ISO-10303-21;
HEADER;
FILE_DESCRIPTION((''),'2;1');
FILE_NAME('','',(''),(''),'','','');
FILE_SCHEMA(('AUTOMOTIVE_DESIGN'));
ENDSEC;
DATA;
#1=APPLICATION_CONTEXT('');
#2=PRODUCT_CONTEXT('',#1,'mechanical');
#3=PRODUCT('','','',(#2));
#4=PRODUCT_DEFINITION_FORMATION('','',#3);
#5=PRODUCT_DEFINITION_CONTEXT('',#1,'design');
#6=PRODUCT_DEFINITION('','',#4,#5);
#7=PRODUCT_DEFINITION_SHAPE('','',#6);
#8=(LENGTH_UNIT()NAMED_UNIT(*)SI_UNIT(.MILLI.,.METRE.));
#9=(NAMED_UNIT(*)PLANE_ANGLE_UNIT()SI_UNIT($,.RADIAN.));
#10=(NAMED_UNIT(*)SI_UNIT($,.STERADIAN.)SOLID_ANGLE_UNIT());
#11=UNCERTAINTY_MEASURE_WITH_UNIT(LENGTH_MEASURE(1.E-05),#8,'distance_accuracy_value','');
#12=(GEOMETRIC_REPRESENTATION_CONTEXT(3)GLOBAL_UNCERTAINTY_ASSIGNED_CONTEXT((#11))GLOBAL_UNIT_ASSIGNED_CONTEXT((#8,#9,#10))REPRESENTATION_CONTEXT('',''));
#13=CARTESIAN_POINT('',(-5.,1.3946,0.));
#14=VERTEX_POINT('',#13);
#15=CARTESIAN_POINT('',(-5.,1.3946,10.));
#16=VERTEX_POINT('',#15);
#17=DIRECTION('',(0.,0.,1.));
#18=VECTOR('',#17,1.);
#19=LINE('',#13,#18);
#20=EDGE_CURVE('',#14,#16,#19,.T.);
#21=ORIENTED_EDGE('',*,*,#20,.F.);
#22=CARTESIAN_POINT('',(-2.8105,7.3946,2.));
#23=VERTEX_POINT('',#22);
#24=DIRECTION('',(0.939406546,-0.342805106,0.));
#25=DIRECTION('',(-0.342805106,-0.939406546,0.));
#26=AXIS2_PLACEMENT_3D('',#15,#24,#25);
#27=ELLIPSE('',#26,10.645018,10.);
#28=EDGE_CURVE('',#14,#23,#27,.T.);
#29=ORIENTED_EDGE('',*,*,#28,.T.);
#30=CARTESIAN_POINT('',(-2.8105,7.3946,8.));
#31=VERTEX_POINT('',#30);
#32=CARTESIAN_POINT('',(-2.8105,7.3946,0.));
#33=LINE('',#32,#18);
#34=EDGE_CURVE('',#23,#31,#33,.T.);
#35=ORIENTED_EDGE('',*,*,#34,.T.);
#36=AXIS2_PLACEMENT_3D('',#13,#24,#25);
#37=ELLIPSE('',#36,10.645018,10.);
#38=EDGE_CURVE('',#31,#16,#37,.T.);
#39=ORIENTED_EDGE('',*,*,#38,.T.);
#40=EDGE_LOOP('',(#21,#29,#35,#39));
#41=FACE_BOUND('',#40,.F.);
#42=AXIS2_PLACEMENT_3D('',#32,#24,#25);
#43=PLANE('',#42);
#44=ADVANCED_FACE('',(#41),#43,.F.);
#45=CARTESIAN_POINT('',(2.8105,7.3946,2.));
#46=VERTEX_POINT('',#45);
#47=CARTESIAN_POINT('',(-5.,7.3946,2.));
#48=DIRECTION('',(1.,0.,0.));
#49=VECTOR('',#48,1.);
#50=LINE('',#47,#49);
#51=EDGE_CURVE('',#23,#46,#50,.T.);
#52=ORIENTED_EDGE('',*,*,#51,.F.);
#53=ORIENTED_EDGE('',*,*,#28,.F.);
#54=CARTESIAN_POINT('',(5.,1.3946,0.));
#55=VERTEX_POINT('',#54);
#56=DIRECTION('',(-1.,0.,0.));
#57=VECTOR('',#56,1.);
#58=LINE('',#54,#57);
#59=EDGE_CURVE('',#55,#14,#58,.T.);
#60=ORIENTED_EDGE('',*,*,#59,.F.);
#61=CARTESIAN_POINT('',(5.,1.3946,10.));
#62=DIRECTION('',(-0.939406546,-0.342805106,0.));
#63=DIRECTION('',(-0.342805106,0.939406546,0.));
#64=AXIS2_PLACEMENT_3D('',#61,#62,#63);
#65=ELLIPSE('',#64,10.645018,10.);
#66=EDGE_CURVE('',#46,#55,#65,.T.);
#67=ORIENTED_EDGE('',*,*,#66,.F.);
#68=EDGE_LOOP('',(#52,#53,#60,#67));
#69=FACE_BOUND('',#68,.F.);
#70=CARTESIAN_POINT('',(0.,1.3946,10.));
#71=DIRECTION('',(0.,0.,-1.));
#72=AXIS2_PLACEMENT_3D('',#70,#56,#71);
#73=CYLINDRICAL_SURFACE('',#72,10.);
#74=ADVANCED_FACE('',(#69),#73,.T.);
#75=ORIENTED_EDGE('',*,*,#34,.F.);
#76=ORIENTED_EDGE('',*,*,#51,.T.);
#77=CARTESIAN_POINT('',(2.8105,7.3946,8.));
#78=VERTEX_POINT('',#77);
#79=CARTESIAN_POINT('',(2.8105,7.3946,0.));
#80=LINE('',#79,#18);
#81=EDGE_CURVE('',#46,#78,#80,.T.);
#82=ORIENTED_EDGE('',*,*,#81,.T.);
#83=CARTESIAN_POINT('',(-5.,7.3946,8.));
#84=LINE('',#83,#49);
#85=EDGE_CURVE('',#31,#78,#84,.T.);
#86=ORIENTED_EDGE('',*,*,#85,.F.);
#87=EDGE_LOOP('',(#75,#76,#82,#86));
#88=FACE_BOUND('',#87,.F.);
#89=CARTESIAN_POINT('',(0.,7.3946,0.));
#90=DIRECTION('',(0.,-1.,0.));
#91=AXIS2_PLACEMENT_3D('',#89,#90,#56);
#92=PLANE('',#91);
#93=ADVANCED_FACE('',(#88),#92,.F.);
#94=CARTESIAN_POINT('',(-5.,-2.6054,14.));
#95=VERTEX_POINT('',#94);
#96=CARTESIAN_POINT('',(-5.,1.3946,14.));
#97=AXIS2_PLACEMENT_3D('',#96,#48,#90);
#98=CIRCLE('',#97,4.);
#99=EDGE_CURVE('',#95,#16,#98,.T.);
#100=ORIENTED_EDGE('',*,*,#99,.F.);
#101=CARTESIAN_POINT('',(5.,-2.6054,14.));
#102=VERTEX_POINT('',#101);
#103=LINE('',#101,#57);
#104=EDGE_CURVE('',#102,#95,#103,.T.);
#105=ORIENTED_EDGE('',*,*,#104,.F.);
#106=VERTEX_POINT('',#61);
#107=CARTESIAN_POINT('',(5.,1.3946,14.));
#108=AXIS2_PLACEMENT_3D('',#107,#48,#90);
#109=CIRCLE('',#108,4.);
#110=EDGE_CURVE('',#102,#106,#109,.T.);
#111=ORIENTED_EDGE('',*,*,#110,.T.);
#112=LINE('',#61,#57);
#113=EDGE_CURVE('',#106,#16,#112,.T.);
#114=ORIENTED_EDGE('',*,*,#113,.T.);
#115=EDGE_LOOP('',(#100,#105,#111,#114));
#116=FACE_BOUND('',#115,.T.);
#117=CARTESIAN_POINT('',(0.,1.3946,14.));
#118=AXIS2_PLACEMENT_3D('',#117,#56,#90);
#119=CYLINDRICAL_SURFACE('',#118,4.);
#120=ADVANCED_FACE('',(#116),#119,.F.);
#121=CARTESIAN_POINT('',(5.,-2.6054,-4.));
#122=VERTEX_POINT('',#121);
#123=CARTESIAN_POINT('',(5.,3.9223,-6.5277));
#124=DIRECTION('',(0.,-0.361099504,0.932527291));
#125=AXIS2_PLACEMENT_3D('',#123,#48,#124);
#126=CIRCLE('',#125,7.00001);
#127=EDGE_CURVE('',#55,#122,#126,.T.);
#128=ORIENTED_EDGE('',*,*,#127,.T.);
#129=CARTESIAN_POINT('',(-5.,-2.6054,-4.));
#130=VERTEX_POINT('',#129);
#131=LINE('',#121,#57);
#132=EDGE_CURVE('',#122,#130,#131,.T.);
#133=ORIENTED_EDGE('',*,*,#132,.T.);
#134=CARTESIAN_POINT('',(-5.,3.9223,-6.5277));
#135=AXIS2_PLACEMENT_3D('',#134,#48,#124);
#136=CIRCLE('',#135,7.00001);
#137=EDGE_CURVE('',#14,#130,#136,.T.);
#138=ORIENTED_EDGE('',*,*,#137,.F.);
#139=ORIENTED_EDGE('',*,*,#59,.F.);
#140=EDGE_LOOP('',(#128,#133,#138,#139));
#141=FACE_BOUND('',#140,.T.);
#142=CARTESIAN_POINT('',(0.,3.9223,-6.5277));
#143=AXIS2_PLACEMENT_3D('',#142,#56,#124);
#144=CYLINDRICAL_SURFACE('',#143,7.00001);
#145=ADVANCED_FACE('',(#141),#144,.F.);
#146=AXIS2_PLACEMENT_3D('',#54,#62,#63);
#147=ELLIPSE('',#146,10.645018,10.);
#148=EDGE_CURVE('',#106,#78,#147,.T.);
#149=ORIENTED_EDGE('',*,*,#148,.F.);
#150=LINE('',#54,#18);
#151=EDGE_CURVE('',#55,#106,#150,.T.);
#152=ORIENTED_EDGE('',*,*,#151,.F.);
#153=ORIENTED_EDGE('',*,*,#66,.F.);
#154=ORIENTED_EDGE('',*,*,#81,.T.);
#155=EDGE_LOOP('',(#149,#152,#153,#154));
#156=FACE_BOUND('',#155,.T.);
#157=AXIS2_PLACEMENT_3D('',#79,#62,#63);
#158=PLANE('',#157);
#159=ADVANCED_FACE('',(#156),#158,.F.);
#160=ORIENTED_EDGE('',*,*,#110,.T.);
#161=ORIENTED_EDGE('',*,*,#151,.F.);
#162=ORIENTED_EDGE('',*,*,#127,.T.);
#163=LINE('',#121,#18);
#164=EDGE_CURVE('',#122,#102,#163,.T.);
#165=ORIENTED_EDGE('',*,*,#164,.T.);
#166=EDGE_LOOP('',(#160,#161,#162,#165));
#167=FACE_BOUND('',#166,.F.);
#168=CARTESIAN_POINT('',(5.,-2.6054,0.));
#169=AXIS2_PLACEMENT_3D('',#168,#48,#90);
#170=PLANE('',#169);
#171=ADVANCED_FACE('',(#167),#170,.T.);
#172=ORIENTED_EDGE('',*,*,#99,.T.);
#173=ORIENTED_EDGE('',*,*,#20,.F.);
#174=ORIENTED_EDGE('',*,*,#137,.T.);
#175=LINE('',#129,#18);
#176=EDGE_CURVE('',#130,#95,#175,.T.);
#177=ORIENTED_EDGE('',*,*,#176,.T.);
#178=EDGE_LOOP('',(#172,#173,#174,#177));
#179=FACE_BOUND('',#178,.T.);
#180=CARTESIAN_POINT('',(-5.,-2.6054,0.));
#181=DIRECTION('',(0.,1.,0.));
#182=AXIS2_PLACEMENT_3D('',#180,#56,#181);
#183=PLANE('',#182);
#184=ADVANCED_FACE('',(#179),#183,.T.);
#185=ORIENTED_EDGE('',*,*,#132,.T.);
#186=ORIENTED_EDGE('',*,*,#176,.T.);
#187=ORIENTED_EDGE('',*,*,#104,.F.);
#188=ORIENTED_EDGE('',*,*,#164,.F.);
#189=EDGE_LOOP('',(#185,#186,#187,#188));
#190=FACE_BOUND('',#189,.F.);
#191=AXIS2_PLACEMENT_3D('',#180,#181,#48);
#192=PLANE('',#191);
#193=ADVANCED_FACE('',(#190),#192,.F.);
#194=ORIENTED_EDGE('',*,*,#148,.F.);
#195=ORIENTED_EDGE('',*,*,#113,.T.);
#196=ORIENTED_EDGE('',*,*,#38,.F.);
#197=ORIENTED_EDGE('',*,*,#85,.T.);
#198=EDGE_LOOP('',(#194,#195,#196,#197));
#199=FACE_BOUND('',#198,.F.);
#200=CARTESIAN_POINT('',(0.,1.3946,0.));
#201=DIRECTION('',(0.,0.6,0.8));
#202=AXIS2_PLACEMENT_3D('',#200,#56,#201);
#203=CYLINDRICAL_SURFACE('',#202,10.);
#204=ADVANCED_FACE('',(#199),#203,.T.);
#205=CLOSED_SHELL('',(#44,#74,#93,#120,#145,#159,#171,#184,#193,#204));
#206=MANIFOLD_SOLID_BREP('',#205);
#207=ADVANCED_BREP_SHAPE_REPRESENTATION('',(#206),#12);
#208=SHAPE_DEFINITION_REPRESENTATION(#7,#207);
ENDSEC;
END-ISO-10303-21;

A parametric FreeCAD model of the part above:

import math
import FreeCAD as App
import Part
import Sketcher
from FreeCAD import Vector

doc = App.newDocument("Part")
params = doc.addObject("Spreadsheet::Sheet", "Params")
for row, (alias, value) in enumerate([
    ("sketch1_width", "5 mm"),
    ("sketch1_height", "4 mm"),
    ("pad1_length", "10 mm"),
    ("sketch2_radius", "10 mm"),
    ("pocket1_length", "10 mm"),
    ("sketch3_radius", "7 mm"),
    ("sketch3_radius2", "4 mm"),
    ("sketch3_height", "10 mm"),
    ("pad2_length", "10 mm"),
], start=1):
    params.set(f"A{row}", alias)
    params.set(f"B{row}", "=" + value)
    params.setAlias(f"B{row}", alias)

body = doc.addObject("PartDesign::Body", "Body")

sketch1 = body.newObject("Sketcher::SketchObject", "Sketch")
sketch1.AttachmentSupport = (doc.getObject("XY_Plane"), [""])
sketch1.MapMode = "FlatFace"
sketch1.addGeometry(Part.LineSegment(Vector(-5, 1.4, 0), Vector(-5, -2.6, 0)), False)
sketch1.addGeometry(Part.LineSegment(Vector(-5, -2.6, 0), Vector(0, -2.6, 0)), False)
sketch1.addGeometry(Part.LineSegment(Vector(0, -2.6, 0), Vector(0, 7.4, 0)), False)
sketch1.addGeometry(Part.LineSegment(Vector(0, 7.4, 0), Vector(-2.8, 7.4, 0)), False)
sketch1.addGeometry(Part.LineSegment(Vector(-2.8, 7.4, 0), Vector(-5, 1.4, 0)), False)
sketch1.addConstraint(Sketcher.Constraint("Coincident", 0, 2, 1, 1))
sketch1.addConstraint(Sketcher.Constraint("Coincident", 1, 2, 2, 1))
sketch1.addConstraint(Sketcher.Constraint("Coincident", 2, 2, 3, 1))
sketch1.addConstraint(Sketcher.Constraint("Coincident", 3, 2, 4, 1))
sketch1.addConstraint(Sketcher.Constraint("Coincident", 4, 2, 0, 1))
sketch1.addConstraint(Sketcher.Constraint("Vertical", 0))
sketch1.addConstraint(Sketcher.Constraint("Horizontal", 1))
sketch1.addConstraint(Sketcher.Constraint("Vertical", 2))
sketch1.addConstraint(Sketcher.Constraint("Horizontal", 3))
sketch1.addConstraint(Sketcher.Constraint("PointOnObject", 1, 2, -2))
sketch1.addConstraint(Sketcher.Constraint("DistanceX", 1, 1, 1, 2, 5.0))
sketch1.addConstraint(Sketcher.Constraint("DistanceY", 0, 2, 0, 1, 4.0))
sketch1.addConstraint(Sketcher.Constraint("DistanceY", 4, 2, 3, 2, 6.0))
sketch1.addConstraint(Sketcher.Constraint("Distance", 4, 6.387))
sketch1.addConstraint(Sketcher.Constraint("DistanceY", 0, 2, -1, 1, 2.6054))
sketch1.setExpression("Constraints[10]", "Params.sketch1_width")
sketch1.setExpression("Constraints[11]", "Params.sketch1_height")
pad1 = body.newObject("PartDesign::Pad", "Pad")
pad1.Profile = sketch1
pad1.setExpression("Length", "Params.pad1_length")
doc.recompute()

mirrored = body.newObject("PartDesign::Mirrored", "Mirrored")
mirrored.Originals = [pad1]
mirrored.MirrorPlane = (doc.getObject("YZ_Plane"), [""])
body.Tip = mirrored

sketch2 = body.newObject("Sketcher::SketchObject", "Sketch001")
sketch2.AttachmentSupport = (doc.getObject("YZ_Plane"), [""])
sketch2.MapMode = "FlatFace"
sketch2.addGeometry(Part.LineSegment(Vector(1.4, 0, 0), Vector(7.4, 0, 0)), False)
sketch2.addGeometry(Part.LineSegment(Vector(7.4, 0, 0), Vector(7.4, 2, 0)), False)
sketch2.addGeometry(Part.ArcOfCircle(Part.Circle(Vector(1.4, 10, 0), Vector(0, 0, 1), 10), math.radians(-90), math.radians(-53)), False)
sketch2.addGeometry(Part.ArcOfCircle(Part.Circle(Vector(1.4, 0, 0), Vector(0, 0, 1), 10), math.radians(53), math.radians(90)), False)
sketch2.addGeometry(Part.LineSegment(Vector(7.4, 8, 0), Vector(7.4, 10, 0)), False)
sketch2.addGeometry(Part.LineSegment(Vector(7.4, 10, 0), Vector(1.4, 10, 0)), False)
sketch2.addConstraint(Sketcher.Constraint("Coincident", 0, 2, 1, 1))
sketch2.addConstraint(Sketcher.Constraint("Coincident", 1, 2, 2, 2))
sketch2.addConstraint(Sketcher.Constraint("Tangent", 2, 1, 0, 1))
sketch2.addConstraint(Sketcher.Constraint("Coincident", 3, 1, 4, 1))
sketch2.addConstraint(Sketcher.Constraint("Coincident", 4, 2, 5, 1))
sketch2.addConstraint(Sketcher.Constraint("Tangent", 5, 2, 3, 2))
sketch2.addConstraint(Sketcher.Constraint("Horizontal", 0))
sketch2.addConstraint(Sketcher.Constraint("Vertical", 1))
sketch2.addConstraint(Sketcher.Constraint("Vertical", 4))
sketch2.addConstraint(Sketcher.Constraint("Horizontal", 5))
sketch2.addConstraint(Sketcher.Constraint("Coincident", 2, 1, 3, 3))
sketch2.addConstraint(Sketcher.Constraint("Equal", 2, 3))
sketch2.addConstraint(Sketcher.Constraint("PointOnObject", 3, 3, -1))
sketch2.addConstraint(Sketcher.Constraint("Vertical", 1, 2, 3, 1))
sketch2.addConstraint(Sketcher.Constraint("Radius", 2, 10.0))
sketch2.addConstraint(Sketcher.Constraint("DistanceY", -1, 1, 3, 1, 8.0))
sketch2.addConstraint(Sketcher.Constraint("DistanceX", -1, 1, 2, 3, 1.3946))
sketch2.setExpression("Constraints[14]", "Params.sketch2_radius")
pocket1 = body.newObject("PartDesign::Pocket", "Pocket")
pocket1.Profile = sketch2
pocket1.setExpression("Length", "Params.pocket1_length")
pocket1.Midplane = True

sketch3 = body.newObject("Sketcher::SketchObject", "Sketch002")
sketch3.AttachmentSupport = (doc.getObject("YZ_Plane"), [""])
sketch3.MapMode = "FlatFace"
sketch3.addGeometry(Part.ArcOfCircle(Part.Circle(Vector(3.9, -6.5, 0), Vector(0, 0, 1), 7), math.radians(111), math.radians(159)), False)
sketch3.addGeometry(Part.LineSegment(Vector(1.4, 0, 0), Vector(1.4, 10, 0)), False)
sketch3.addGeometry(Part.ArcOfCircle(Part.Circle(Vector(1.4, 14, 0), Vector(0, 0, 1), 4), math.radians(180), math.radians(270)), False)
sketch3.addGeometry(Part.LineSegment(Vector(-2.6, 14, 0), Vector(-2.6, -4, 0)), False)
sketch3.addConstraint(Sketcher.Constraint("Coincident", 0, 1, 1, 1))
sketch3.addConstraint(Sketcher.Constraint("Coincident", 1, 2, 2, 2))
sketch3.addConstraint(Sketcher.Constraint("Tangent", 2, 1, 3, 1))
sketch3.addConstraint(Sketcher.Constraint("Coincident", 3, 2, 0, 2))
sketch3.addConstraint(Sketcher.Constraint("Vertical", 1))
sketch3.addConstraint(Sketcher.Constraint("Vertical", 3))
sketch3.addConstraint(Sketcher.Constraint("PointOnObject", 0, 1, -1))
sketch3.addConstraint(Sketcher.Constraint("Vertical", 2, 3, 0, 1))
sketch3.addConstraint(Sketcher.Constraint("Radius", 0, 7.0))
sketch3.addConstraint(Sketcher.Constraint("Radius", 2, 4.0))
sketch3.addConstraint(Sketcher.Constraint("DistanceY", 3, 2, -1, 1, 4.0))
sketch3.addConstraint(Sketcher.Constraint("DistanceY", 1, 1, 1, 2, 10.0))
sketch3.addConstraint(Sketcher.Constraint("DistanceX", -1, 1, 0, 3, 3.9223))
sketch3.setExpression("Constraints[8]", "Params.sketch3_radius")
sketch3.setExpression("Constraints[9]", "Params.sketch3_radius2")
sketch3.setExpression("Constraints[11]", "Params.sketch3_height")
pad2 = body.newObject("PartDesign::Pad", "Pad001")
pad2.Profile = sketch3
pad2.setExpression("Length", "Params.pad2_length")
pad2.Midplane = True

doc.recompute()
